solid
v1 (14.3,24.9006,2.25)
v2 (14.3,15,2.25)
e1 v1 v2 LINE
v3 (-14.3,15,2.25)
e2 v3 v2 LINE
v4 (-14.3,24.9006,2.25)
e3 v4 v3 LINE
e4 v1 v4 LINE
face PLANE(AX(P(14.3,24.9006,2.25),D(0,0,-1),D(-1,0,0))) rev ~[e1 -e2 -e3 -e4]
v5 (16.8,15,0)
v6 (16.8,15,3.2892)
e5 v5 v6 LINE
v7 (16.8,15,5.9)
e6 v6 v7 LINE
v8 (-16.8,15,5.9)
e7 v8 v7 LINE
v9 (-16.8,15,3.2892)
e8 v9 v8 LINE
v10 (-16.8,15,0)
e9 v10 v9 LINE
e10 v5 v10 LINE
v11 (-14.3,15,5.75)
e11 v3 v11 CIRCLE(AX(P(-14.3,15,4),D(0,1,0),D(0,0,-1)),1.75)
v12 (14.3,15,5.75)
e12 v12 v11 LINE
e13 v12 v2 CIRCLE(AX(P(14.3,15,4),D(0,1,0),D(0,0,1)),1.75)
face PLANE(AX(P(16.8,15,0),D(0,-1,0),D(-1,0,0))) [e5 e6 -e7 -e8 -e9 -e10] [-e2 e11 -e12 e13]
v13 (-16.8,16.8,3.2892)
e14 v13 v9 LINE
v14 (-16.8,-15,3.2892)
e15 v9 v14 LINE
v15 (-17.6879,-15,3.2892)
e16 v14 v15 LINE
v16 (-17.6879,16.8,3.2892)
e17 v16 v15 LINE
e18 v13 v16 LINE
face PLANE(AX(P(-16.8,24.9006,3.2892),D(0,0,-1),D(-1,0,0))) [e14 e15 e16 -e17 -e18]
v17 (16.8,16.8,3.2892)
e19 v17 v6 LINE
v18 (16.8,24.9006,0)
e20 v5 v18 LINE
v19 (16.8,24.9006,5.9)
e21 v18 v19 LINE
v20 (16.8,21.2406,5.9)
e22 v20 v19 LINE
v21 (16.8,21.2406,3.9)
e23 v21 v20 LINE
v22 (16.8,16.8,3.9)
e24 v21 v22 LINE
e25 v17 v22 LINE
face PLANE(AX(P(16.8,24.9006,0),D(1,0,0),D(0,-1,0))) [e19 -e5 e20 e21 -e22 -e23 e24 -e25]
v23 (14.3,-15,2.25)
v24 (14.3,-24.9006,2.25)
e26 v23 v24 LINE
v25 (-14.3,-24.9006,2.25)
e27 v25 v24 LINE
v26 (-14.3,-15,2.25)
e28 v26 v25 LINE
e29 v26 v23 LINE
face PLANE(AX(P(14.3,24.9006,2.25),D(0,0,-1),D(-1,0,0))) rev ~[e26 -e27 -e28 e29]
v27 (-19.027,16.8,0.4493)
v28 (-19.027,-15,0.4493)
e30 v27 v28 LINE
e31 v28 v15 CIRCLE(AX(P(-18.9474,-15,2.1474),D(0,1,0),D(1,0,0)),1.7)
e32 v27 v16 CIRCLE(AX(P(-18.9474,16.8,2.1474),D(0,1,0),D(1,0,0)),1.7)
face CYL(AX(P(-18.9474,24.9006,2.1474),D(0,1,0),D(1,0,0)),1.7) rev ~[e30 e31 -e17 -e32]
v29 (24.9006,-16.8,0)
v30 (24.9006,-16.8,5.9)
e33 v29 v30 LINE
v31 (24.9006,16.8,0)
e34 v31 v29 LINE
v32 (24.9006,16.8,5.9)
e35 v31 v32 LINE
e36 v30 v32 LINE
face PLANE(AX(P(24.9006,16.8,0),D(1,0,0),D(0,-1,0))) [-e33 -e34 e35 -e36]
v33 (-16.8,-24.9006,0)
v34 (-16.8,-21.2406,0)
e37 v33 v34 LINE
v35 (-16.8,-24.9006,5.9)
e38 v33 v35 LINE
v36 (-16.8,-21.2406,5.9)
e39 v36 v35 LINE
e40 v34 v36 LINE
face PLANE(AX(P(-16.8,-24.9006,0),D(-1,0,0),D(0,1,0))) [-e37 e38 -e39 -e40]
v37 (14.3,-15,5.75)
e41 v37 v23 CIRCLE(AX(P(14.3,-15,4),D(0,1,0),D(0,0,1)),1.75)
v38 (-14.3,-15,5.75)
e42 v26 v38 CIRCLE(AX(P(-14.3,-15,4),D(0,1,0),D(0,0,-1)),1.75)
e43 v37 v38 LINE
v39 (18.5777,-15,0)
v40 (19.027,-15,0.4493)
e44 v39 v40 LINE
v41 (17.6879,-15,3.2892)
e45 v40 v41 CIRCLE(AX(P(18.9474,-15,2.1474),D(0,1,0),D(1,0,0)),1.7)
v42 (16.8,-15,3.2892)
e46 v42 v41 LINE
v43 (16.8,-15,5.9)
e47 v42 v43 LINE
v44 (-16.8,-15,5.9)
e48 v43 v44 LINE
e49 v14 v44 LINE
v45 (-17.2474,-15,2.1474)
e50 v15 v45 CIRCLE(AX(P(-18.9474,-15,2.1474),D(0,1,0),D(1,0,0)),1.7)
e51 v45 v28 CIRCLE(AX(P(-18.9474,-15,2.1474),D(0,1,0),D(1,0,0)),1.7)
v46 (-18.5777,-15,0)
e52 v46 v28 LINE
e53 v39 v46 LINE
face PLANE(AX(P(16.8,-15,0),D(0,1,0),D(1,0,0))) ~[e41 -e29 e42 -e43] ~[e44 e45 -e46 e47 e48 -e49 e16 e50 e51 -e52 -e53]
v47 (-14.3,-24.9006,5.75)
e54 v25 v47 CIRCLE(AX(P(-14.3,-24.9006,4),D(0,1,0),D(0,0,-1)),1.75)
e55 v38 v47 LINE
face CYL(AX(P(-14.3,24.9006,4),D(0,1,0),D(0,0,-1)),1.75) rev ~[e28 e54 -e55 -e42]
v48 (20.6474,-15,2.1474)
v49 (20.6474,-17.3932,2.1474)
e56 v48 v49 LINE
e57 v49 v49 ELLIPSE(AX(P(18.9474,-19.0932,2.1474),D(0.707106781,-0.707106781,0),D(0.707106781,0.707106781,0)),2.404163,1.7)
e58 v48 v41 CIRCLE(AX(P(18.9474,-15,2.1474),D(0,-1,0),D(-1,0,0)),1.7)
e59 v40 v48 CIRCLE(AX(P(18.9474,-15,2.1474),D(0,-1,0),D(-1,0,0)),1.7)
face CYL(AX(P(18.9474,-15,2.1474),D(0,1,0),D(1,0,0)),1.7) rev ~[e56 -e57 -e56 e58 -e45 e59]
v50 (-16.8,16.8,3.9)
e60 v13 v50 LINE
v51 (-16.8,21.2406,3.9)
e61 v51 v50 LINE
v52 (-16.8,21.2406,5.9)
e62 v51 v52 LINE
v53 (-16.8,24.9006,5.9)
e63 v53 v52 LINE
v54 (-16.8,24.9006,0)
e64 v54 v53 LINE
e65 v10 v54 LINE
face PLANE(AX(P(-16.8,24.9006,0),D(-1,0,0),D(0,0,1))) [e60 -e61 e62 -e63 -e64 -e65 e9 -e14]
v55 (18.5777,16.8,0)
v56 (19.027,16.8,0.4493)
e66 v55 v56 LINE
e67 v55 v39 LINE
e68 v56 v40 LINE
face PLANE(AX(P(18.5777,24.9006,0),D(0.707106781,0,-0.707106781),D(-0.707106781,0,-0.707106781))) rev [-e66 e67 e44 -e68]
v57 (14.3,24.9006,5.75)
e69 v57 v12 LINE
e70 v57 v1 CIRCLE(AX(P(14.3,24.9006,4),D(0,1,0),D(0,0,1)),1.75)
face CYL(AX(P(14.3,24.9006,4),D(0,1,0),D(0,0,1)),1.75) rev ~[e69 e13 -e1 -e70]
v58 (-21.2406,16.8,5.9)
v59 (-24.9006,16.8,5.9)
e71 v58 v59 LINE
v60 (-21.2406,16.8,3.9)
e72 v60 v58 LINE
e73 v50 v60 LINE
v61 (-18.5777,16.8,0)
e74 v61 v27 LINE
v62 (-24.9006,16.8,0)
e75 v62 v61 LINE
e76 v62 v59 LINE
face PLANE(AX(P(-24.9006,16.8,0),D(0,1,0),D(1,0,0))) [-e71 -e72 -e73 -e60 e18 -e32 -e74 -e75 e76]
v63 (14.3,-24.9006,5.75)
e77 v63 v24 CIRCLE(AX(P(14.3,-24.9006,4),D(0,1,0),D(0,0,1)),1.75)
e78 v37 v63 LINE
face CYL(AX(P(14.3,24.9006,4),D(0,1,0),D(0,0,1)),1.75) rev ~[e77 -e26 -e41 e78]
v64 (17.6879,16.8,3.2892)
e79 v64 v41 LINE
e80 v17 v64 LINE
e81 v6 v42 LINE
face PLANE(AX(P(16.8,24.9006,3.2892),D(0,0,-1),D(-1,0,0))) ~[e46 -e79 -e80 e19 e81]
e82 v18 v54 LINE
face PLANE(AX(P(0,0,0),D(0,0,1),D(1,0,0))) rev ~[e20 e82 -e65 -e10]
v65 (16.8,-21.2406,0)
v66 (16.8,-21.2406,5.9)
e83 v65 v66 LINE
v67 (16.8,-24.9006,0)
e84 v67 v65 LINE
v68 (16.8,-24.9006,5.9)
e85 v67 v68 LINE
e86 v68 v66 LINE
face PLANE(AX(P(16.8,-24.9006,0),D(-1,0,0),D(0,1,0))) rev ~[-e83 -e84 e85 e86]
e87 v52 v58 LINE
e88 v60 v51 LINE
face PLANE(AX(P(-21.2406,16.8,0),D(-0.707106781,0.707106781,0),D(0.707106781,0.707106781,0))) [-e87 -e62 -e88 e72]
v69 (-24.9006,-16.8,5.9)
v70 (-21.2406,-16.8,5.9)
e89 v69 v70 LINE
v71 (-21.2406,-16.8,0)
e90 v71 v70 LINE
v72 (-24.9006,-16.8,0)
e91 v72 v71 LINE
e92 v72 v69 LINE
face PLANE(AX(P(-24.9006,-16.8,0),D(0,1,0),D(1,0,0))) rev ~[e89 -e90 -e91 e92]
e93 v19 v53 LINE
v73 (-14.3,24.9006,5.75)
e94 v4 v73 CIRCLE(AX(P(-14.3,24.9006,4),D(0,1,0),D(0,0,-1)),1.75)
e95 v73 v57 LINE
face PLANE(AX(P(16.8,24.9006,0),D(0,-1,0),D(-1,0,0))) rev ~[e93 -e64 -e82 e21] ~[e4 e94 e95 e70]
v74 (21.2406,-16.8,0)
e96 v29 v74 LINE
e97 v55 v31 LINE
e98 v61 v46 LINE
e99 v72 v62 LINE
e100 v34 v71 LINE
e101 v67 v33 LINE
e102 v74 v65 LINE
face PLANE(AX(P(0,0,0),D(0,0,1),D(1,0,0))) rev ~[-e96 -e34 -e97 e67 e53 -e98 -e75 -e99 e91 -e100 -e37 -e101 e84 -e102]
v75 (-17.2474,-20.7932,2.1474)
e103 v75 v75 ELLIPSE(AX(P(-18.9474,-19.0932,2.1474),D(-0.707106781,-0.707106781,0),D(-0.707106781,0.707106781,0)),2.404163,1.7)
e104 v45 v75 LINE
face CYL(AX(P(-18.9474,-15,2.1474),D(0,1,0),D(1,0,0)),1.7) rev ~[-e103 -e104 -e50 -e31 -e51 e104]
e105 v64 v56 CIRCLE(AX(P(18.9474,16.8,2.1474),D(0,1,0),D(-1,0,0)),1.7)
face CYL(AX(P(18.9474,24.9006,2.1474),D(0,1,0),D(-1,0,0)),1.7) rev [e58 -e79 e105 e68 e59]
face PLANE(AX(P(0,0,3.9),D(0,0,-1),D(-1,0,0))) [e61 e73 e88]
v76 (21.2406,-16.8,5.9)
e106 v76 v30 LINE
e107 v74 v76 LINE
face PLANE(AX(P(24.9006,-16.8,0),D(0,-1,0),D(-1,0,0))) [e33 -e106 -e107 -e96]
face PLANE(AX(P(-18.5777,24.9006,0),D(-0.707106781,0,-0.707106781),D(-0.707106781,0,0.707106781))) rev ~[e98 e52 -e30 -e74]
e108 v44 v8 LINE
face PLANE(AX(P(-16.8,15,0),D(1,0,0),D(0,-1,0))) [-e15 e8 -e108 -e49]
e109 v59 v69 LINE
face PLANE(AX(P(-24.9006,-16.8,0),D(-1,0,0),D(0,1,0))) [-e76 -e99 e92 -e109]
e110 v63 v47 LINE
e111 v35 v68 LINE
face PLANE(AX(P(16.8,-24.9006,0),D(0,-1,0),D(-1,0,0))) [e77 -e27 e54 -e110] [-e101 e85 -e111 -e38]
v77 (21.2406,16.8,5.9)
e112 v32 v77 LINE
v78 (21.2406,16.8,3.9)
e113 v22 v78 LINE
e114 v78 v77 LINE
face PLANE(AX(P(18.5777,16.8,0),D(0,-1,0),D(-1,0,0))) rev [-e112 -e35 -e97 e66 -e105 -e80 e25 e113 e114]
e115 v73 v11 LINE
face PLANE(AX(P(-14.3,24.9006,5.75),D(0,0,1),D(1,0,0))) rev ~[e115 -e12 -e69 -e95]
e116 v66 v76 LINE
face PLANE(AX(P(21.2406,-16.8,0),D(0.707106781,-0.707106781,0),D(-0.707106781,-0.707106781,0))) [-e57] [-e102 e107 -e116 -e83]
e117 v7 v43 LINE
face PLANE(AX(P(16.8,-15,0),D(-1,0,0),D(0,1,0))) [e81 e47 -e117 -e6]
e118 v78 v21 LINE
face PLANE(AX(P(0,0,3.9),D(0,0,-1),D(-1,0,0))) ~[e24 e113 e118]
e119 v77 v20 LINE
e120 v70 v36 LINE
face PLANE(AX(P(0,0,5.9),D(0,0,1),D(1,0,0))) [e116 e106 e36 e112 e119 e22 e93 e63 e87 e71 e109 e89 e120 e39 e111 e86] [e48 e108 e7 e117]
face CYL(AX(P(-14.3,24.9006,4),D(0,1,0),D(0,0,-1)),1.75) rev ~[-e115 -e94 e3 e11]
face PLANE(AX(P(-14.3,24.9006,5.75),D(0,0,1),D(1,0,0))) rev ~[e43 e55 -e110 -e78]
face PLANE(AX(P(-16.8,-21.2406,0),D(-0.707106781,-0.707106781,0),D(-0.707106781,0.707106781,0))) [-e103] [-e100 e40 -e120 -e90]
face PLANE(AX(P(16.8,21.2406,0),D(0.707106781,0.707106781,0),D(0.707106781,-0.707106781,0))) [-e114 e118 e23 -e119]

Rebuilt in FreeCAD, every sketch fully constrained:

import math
import FreeCAD as App
import Part
import Sketcher
from FreeCAD import Vector
Q = App.Units.Quantity

doc = App.newDocument("Part")
body = doc.addObject("PartDesign::Body", "Body")

sketch1 = body.newObject("Sketcher::SketchObject", "Sketch")
sketch1.AttachmentSupport = (doc.getObject("XY_Plane"), [""])
sketch1.MapMode = "FlatFace"
sketch1.addGeometry([
    Part.LineSegment(Vector(16.8, 21.2, 0), Vector(16.8, 24.9, 0)),
    Part.LineSegment(Vector(16.8, 24.9, 0), Vector(-16.8, 24.9, 0)),
    Part.LineSegment(Vector(-16.8, 24.9, 0), Vector(-16.8, 21.2, 0)),
    Part.LineSegment(Vector(-16.8, 21.2, 0), Vector(-21.2, 16.8, 0)),
    Part.LineSegment(Vector(-21.2, 16.8, 0), Vector(-24.9, 16.8, 0)),
    Part.LineSegment(Vector(-24.9, 16.8, 0), Vector(-24.9, -16.8, 0)),
    Part.LineSegment(Vector(-24.9, -16.8, 0), Vector(-21.2, -16.8, 0)),
    Part.LineSegment(Vector(-21.2, -16.8, 0), Vector(-16.8, -21.2, 0)),
    Part.LineSegment(Vector(-16.8, -21.2, 0), Vector(-16.8, -24.9, 0)),
    Part.LineSegment(Vector(-16.8, -24.9, 0), Vector(16.8, -24.9, 0)),
    Part.LineSegment(Vector(16.8, -24.9, 0), Vector(16.8, -21.2, 0)),
    Part.LineSegment(Vector(16.8, -21.2, 0), Vector(21.2, -16.8, 0)),
    Part.LineSegment(Vector(21.2, -16.8, 0), Vector(24.9, -16.8, 0)),
    Part.LineSegment(Vector(24.9, -16.8, 0), Vector(24.9, 16.8, 0)),
    Part.LineSegment(Vector(24.9, 16.8, 0), Vector(21.2, 16.8, 0)),
    Part.LineSegment(Vector(21.2, 16.8, 0), Vector(16.8, 21.2, 0)),
    Part.LineSegment(Vector(16.8, -15, 0), Vector(-16.8, -15, 0)),
    Part.LineSegment(Vector(-16.8, -15, 0), Vector(-16.8, 15, 0)),
    Part.LineSegment(Vector(-16.8, 15, 0), Vector(16.8, 15, 0)),
    Part.LineSegment(Vector(16.8, 15, 0), Vector(16.8, -15, 0)),
], False)
sketch1.addConstraint([
    Sketcher.Constraint("Coincident", 0, 2, 1, 1),
    Sketcher.Constraint("Coincident", 1, 2, 2, 1),
    Sketcher.Constraint("Coincident", 2, 2, 3, 1),
    Sketcher.Constraint("Coincident", 3, 2, 4, 1),
    Sketcher.Constraint("Coincident", 4, 2, 5, 1),
    Sketcher.Constraint("Coincident", 5, 2, 6, 1),
    Sketcher.Constraint("Coincident", 6, 2, 7, 1),
    Sketcher.Constraint("Coincident", 7, 2, 8, 1),
    Sketcher.Constraint("Coincident", 8, 2, 9, 1),
    Sketcher.Constraint("Coincident", 9, 2, 10, 1),
    Sketcher.Constraint("Coincident", 10, 2, 11, 1),
    Sketcher.Constraint("Coincident", 11, 2, 12, 1),
    Sketcher.Constraint("Coincident", 12, 2, 13, 1),
    Sketcher.Constraint("Coincident", 13, 2, 14, 1),
    Sketcher.Constraint("Coincident", 14, 2, 15, 1),
    Sketcher.Constraint("Coincident", 15, 2, 0, 1),
    Sketcher.Constraint("Coincident", 16, 2, 17, 1),
    Sketcher.Constraint("Coincident", 17, 2, 18, 1),
    Sketcher.Constraint("Coincident", 18, 2, 19, 1),
    Sketcher.Constraint("Coincident", 19, 2, 16, 1),
    Sketcher.Constraint("Vertical", 0),
    Sketcher.Constraint("Horizontal", 1),
    Sketcher.Constraint("Vertical", 2),
    Sketcher.Constraint("Horizontal", 4),
    Sketcher.Constraint("Vertical", 5),
    Sketcher.Constraint("Horizontal", 6),
    Sketcher.Constraint("Vertical", 8),
    Sketcher.Constraint("Horizontal", 9),
    Sketcher.Constraint("Vertical", 10),
    Sketcher.Constraint("Horizontal", 12),
    Sketcher.Constraint("Vertical", 13),
    Sketcher.Constraint("Horizontal", 14),
    Sketcher.Constraint("Horizontal", 16),
    Sketcher.Constraint("Vertical", 17),
    Sketcher.Constraint("Horizontal", 18),
    Sketcher.Constraint("Vertical", 19),
    Sketcher.Constraint("Symmetric", 0, 2, 8, 2, -1, 1),
    Sketcher.Constraint("Symmetric", 2, 2, 10, 2, -1, 1),
    Sketcher.Constraint("Symmetric", 3, 2, 11, 2, -1, 1),
    Sketcher.Constraint("Symmetric", 5, 2, 13, 2, -1, 1),
    Sketcher.Constraint("Symmetric", 16, 2, 18, 2, -1, 1),
    Sketcher.Constraint("Symmetric", 7, 2, 10, 2, -2),
    Sketcher.Constraint("Symmetric", 6, 2, 11, 2, -2),
    Sketcher.Constraint("Perpendicular", 3, 7),
    Sketcher.Constraint("Perpendicular", 11, 15),
    Sketcher.Constraint("Horizontal", 2, 2, 15, 2),
    Sketcher.Constraint("Vertical", 8, 2, 16, 2),
    Sketcher.Constraint("Equal", 14, 0),
    Sketcher.Constraint("Equal", 18, 5),
    Sketcher.Constraint("DistanceY", 17, 1, 17, 2, Q("30 mm")),
    Sketcher.Constraint("DistanceX", 1, 2, 1, 1, Q("33.6 mm")),
    Sketcher.Constraint("DistanceX", 4, 2, 4, 1, Q("3.66 mm")),
    Sketcher.Constraint("Distance", 3, Q("6.28 mm")),
])
pad1 = body.newObject("PartDesign::Pad", "Pad")
pad1.Profile = sketch1
pad1.Length = 8

sketch2 = body.newObject("Sketcher::SketchObject", "Sketch001")
sketch2.AttachmentSupport = (doc.getObject("XZ_Plane"), [""])
sketch2.MapMode = "FlatFace"
sketch2.AttachmentOffset = App.Placement(Vector(0, 0, -24.9006), App.Rotation())
sketch2.addGeometry([
    Part.ArcOfCircle(Part.Circle(Vector(-18.9, 2.1, 0), Vector(0, 0, 1), 1.7), math.radians(42), math.radians(267)),
    Part.LineSegment(Vector(-17.7, 3.3, 0), Vector(-16.8, 3.3, 0)),
    Part.LineSegment(Vector(-16.8, 3.3, 0), Vector(-16.8, 0, 0)),
    Part.LineSegment(Vector(-16.8, 0, 0), Vector(-18.6, 0, 0)),
    Part.LineSegment(Vector(-18.6, 0, 0), Vector(-19, 0.4, 0)),
], False)
sketch2.addConstraint([
    Sketcher.Constraint("Coincident", 0, 1, 1, 1),
    Sketcher.Constraint("Coincident", 1, 2, 2, 1),
    Sketcher.Constraint("Coincident", 2, 2, 3, 1),
    Sketcher.Constraint("Coincident", 3, 2, 4, 1),
    Sketcher.Constraint("Coincident", 4, 2, 0, 2),
    Sketcher.Constraint("Horizontal", 1),
    Sketcher.Constraint("Vertical", 2),
    Sketcher.Constraint("Horizontal", 3),
    Sketcher.Constraint("PointOnObject", 2, 2, -1),
    Sketcher.Constraint("Radius", 0, Q("1.7 mm")),
    Sketcher.Constraint("Angle", 4, Q("135 deg")),
    Sketcher.Constraint("DistanceX", 1, 2, -1, 1, Q("16.8 mm")),
    Sketcher.Constraint("DistanceX", 1, 1, 1, 2, Q("0.888 mm")),
    Sketcher.Constraint("DistanceY", 4, 2, 0, 1, Q("2.84 mm")),
    Sketcher.Constraint("DistanceX", 3, 2, 3, 1, Q("1.7777 mm")),
    Sketcher.Constraint("DistanceY", 2, 2, 2, 1, Q("3.2892 mm")),
])
pocket1 = body.newObject("PartDesign::Pocket", "Pocket")
pocket1.Profile = sketch2
pocket1.Length = 39.9006
pocket1.Reversed = True

sketch3 = body.newObject("Sketcher::SketchObject", "Sketch002")
sketch3.AttachmentSupport = (doc.getObject("XY_Plane"), [""])
sketch3.MapMode = "FlatFace"
sketch3.addGeometry([
    Part.LineSegment(Vector(-21.2, 16.8, 0), Vector(-16.8, 21.2, 0)),
    Part.LineSegment(Vector(-16.8, 21.2, 0), Vector(-16.8, 16.8, 0)),
    Part.LineSegment(Vector(-16.8, 16.8, 0), Vector(-21.2, 16.8, 0)),
], False)
sketch3.addConstraint([
    Sketcher.Constraint("Coincident", 0, 2, 1, 1),
    Sketcher.Constraint("Coincident", 1, 2, 2, 1),
    Sketcher.Constraint("Coincident", 2, 2, 0, 1),
    Sketcher.Constraint("Vertical", 1),
    Sketcher.Constraint("Horizontal", 2),
    Sketcher.Constraint("Equal", 2, 1),
    Sketcher.Constraint("DistanceX", 0, 2, -1, 1, Q("16.8 mm")),
    Sketcher.Constraint("DistanceY", -1, 1, 1, 2, Q("16.8 mm")),
    Sketcher.Constraint("Distance", 0, Q("6.28 mm")),
])
pocket2 = body.newObject("PartDesign::Pocket", "Pocket001")
pocket2.Profile = sketch3
pocket2.Length = 3.9
pocket2.Reversed = True
doc.recompute()

mirrored = body.newObject("PartDesign::Mirrored", "Mirrored")
mirrored.Originals = [pocket2, pocket1]
mirrored.MirrorPlane = (doc.getObject("YZ_Plane"), [""])
body.Tip = mirrored

sketch4 = body.newObject("Sketcher::SketchObject", "Sketch003")
sketch4.AttachmentSupport = (doc.getObject("XZ_Plane"), [""])
sketch4.MapMode = "FlatFace"
sketch4.AttachmentOffset = App.Placement(Vector(0, 0, 15), App.Rotation())
sketch4.addGeometry([
    Part.Circle(Vector(18.9, 2.1, 0), Vector(0, 0, 1), 1.7),
    Part.Circle(Vector(-18.9, 2.1, 0), Vector(0, 0, 1), 1.7),
], False)
sketch4.addConstraint([
    Sketcher.Constraint("Equal", 0, 1),
    Sketcher.Constraint("Symmetric", 0, 3, 1, 3, -2),
    Sketcher.Constraint("Diameter", 0, Q("3.4 mm")),
    Sketcher.Constraint("DistanceX", -1, 1, 0, 3, Q("18.9474 mm")),
    Sketcher.Constraint("DistanceY", -1, 1, 0, 3, Q("2.1474 mm")),
])
pocket3 = body.newObject("PartDesign::Pocket", "Pocket002")
pocket3.Profile = sketch4
pocket3.Length = 10
pocket3.Reversed = True

sketch5 = body.newObject("Sketcher::SketchObject", "Sketch004")
sketch5.AttachmentSupport = (doc.getObject("XZ_Plane"), [""])
sketch5.MapMode = "FlatFace"
sketch5.AttachmentOffset = App.Placement(Vector(0, 0, -24.9006), App.Rotation())
sketch5.addGeometry([
    Part.ArcOfCircle(Part.Circle(Vector(-14.3, 4, 0), Vector(0, 0, 1), 1.8), math.radians(90), math.radians(270)),
    Part.LineSegment(Vector(-14.3, 5.8, 0), Vector(14.3, 5.8, 0)),
    Part.ArcOfCircle(Part.Circle(Vector(14.3, 4, 0), Vector(0, 0, 1), 1.8), math.radians(-90), math.radians(90)),
    Part.LineSegment(Vector(14.3, 2.2, 0), Vector(-14.3, 2.2, 0)),
], False)
sketch5.addConstraint([
    Sketcher.Constraint("Tangent", 0, 1, 1, 1),
    Sketcher.Constraint("Tangent", 1, 2, 2, 2),
    Sketcher.Constraint("Tangent", 2, 1, 3, 1),
    Sketcher.Constraint("Tangent", 3, 2, 0, 2),
    Sketcher.Constraint("Horizontal", 1),
    Sketcher.Constraint("Horizontal", 3),
    Sketcher.Constraint("Radius", 0, Q("1.75 mm")),
    Sketcher.Constraint("DistanceX", 1, 1, 1, 2, Q("28.6 mm")),
    Sketcher.Constraint("DistanceY", -1, 1, 0, 3, Q("4 mm")),
    Sketcher.Constraint("DistanceX", 0, 3, -1, 1, Q("14.3 mm")),
])
pocket4 = body.newObject("PartDesign::Pocket", "Pocket003")
pocket4.Profile = sketch5
pocket4.Type = "ThroughAll"
pocket4.Reversed = True

sketch6 = body.newObject("Sketcher::SketchObject", "Sketch005")
sketch6.AttachmentSupport = (doc.getObject("XY_Plane"), [""])
sketch6.MapMode = "FlatFace"
sketch6.AttachmentOffset = App.Placement(Vector(0, 0, 8), App.Rotation())
sketch6.addGeometry([
    Part.LineSegment(Vector(21.2, 16.8, 0), Vector(16.8, 21.2, 0)),
    Part.LineSegment(Vector(16.8, 21.2, 0), Vector(16.8, 24.9, 0)),
    Part.LineSegment(Vector(16.8, 24.9, 0), Vector(-16.8, 24.9, 0)),
    Part.LineSegment(Vector(-16.8, 24.9, 0), Vector(-16.8, 21.2, 0)),
    Part.LineSegment(Vector(-16.8, 21.2, 0), Vector(-21.2, 16.8, 0)),
    Part.LineSegment(Vector(-21.2, 16.8, 0), Vector(-24.9, 16.8, 0)),
    Part.LineSegment(Vector(-24.9, 16.8, 0), Vector(-24.9, -16.8, 0)),
    Part.LineSegment(Vector(-24.9, -16.8, 0), Vector(-21.2, -16.8, 0)),
    Part.LineSegment(Vector(-21.2, -16.8, 0), Vector(-16.8, -21.2, 0)),
    Part.LineSegment(Vector(-16.8, -21.2, 0), Vector(-16.8, -24.9, 0)),
    Part.LineSegment(Vector(-16.8, -24.9, 0), Vector(16.8, -24.9, 0)),
    Part.LineSegment(Vector(16.8, -24.9, 0), Vector(16.8, -21.2, 0)),
    Part.LineSegment(Vector(16.8, -21.2, 0), Vector(21.2, -16.8, 0)),
    Part.LineSegment(Vector(21.2, -16.8, 0), Vector(24.9, -16.8, 0)),
    Part.LineSegment(Vector(24.9, -16.8, 0), Vector(24.9, 16.8, 0)),
    Part.LineSegment(Vector(24.9, 16.8, 0), Vector(21.2, 16.8, 0)),
    Part.LineSegment(Vector(16.8, -15, 0), Vector(-16.8, -15, 0)),
    Part.LineSegment(Vector(-16.8, -15, 0), Vector(-16.8, 15, 0)),
    Part.LineSegment(Vector(-16.8, 15, 0), Vector(16.8, 15, 0)),
    Part.LineSegment(Vector(16.8, 15, 0), Vector(16.8, -15, 0)),
], False)
sketch6.addConstraint([
    Sketcher.Constraint("Coincident", 0, 2, 1, 1),
    Sketcher.Constraint("Coincident", 1, 2, 2, 1),
    Sketcher.Constraint("Coincident", 2, 2, 3, 1),
    Sketcher.Constraint("Coincident", 3, 2, 4, 1),
    Sketcher.Constraint("Coincident", 4, 2, 5, 1),
    Sketcher.Constraint("Coincident", 5, 2, 6, 1),
    Sketcher.Constraint("Coincident", 6, 2, 7, 1),
    Sketcher.Constraint("Coincident", 7, 2, 8, 1),
    Sketcher.Constraint("Coincident", 8, 2, 9, 1),
    Sketcher.Constraint("Coincident", 9, 2, 10, 1),
    Sketcher.Constraint("Coincident", 10, 2, 11, 1),
    Sketcher.Constraint("Coincident", 11, 2, 12, 1),
    Sketcher.Constraint("Coincident", 12, 2, 13, 1),
    Sketcher.Constraint("Coincident", 13, 2, 14, 1),
    Sketcher.Constraint("Coincident", 14, 2, 15, 1),
    Sketcher.Constraint("Coincident", 15, 2, 0, 1),
    Sketcher.Constraint("Coincident", 16, 2, 17, 1),
    Sketcher.Constraint("Coincident", 17, 2, 18, 1),
    Sketcher.Constraint("Coincident", 18, 2, 19, 1),
    Sketcher.Constraint("Coincident", 19, 2, 16, 1),
    Sketcher.Constraint("Vertical", 1),
    Sketcher.Constraint("Horizontal", 2),
    Sketcher.Constraint("Vertical", 3),
    Sketcher.Constraint("Horizontal", 5),
    Sketcher.Constraint("Vertical", 6),
    Sketcher.Constraint("Horizontal", 7),
    Sketcher.Constraint("Vertical", 9),
    Sketcher.Constraint("Horizontal", 10),
    Sketcher.Constraint("Vertical", 11),
    Sketcher.Constraint("Horizontal", 13),
    Sketcher.Constraint("Vertical", 14),
    Sketcher.Constraint("Horizontal", 15),
    Sketcher.Constraint("Horizontal", 16),
    Sketcher.Constraint("Vertical", 17),
    Sketcher.Constraint("Horizontal", 18),
    Sketcher.Constraint("Vertical", 19),
    Sketcher.Constraint("Symmetric", 0, 2, 8, 2, -1, 1),
    Sketcher.Constraint("Symmetric", 2, 2, 10, 2, -1, 1),
    Sketcher.Constraint("Symmetric", 4, 2, 12, 2, -1, 1),
    Sketcher.Constraint("Symmetric", 6, 2, 14, 2, -1, 1),
    Sketcher.Constraint("Symmetric", 16, 2, 18, 2, -1, 1),
    Sketcher.Constraint("Symmetric", 0, 2, 3, 2, -2),
    Sketcher.Constraint("Symmetric", 7, 2, 12, 2, -2),
    Sketcher.Constraint("Perpendicular", 0, 4),
    Sketcher.Constraint("Perpendicular", 4, 8),
    Sketcher.Constraint("Perpendicular", 8, 12),
    Sketcher.Constraint("Vertical", 9, 2, 16, 2),
    Sketcher.Constraint("Equal", 15, 1),
    Sketcher.Constraint("Equal", 18, 6),
    Sketcher.Constraint("DistanceY", 17, 1, 17, 2, Q("30 mm")),
    Sketcher.Constraint("DistanceX", 2, 2, 2, 1, Q("33.6 mm")),
    Sketcher.Constraint("DistanceX", 5, 2, 5, 1, Q("3.66 mm")),
    Sketcher.Constraint("Distance", 0, Q("6.28 mm")),
])
pocket5 = body.newObject("PartDesign::Pocket", "Pocket004")
pocket5.Profile = sketch6
pocket5.Length = 2.1

doc.recompute()
